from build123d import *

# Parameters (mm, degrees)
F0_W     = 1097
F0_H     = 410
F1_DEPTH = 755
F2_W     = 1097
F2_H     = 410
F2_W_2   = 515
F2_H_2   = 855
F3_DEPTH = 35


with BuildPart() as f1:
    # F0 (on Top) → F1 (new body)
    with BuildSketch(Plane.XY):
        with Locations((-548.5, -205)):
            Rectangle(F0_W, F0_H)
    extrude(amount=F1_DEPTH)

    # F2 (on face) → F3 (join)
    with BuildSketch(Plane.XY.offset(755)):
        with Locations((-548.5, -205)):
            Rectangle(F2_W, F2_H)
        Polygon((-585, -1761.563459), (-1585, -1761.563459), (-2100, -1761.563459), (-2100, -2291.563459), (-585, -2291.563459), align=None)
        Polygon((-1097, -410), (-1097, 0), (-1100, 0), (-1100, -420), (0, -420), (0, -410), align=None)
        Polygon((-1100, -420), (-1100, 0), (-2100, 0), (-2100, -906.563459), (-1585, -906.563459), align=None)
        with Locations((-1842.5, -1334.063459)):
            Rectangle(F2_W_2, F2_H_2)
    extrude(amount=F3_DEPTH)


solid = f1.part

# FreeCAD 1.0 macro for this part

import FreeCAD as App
import Part
import Sketcher
from FreeCAD import Vector


def add_polygon(sketch, points):
    """Adds a closed chain of lines whose ends are joined by coincident constraints."""
    first, n = sketch.GeometryCount, len(points)
    for a, b in zip(points, points[1:] + points[:1]):
        sketch.addGeometry(Part.LineSegment(App.Vector(*a, 0), App.Vector(*b, 0)), False)
    for i in range(n):
        sketch.addConstraint(Sketcher.Constraint("Coincident", first + i, 2, first + (i + 1) % n, 1))

doc = App.newDocument("Part")
body = doc.addObject("PartDesign::Body", "Body")

# Sketch on XY plane
sketch1 = doc.addObject("Sketcher::SketchObject", "Sketch")
body.addObject(sketch1)
sketch1.AttachmentSupport = (doc.XY_Plane, [""])
sketch1.MapMode = "FlatFace"
add_polygon(sketch1, [(-1097, 0), (-1097, -410), (0, -410), (0, 0)])  # lines 0-3
sketch1.addConstraint(Sketcher.Constraint("Vertical", 0))
sketch1.addConstraint(Sketcher.Constraint("Horizontal", 1))
sketch1.addConstraint(Sketcher.Constraint("Vertical", 2))
sketch1.addConstraint(Sketcher.Constraint("Horizontal", 3))
sketch1.addConstraint(Sketcher.Constraint("Coincident", 2, 2, -1, 1))
sketch1.addConstraint(Sketcher.Constraint("DistanceX", 1, 1, 1, 2, 1097.0))
sketch1.addConstraint(Sketcher.Constraint("DistanceY", 0, 2, 0, 1, 410.0))
pad1 = doc.addObject("PartDesign::Pad", "Pad")
body.addObject(pad1)
pad1.Profile = sketch1
pad1.Length = 755

# Sketch on XY plane
sketch2 = doc.addObject("Sketcher::SketchObject", "Sketch001")
body.addObject(sketch2)
sketch2.AttachmentSupport = (doc.XY_Plane, [""])
sketch2.MapMode = "FlatFace"
sketch2.AttachmentOffset = App.Placement(Vector(0, 0, 755), App.Rotation())
add_polygon(sketch2, [(0, 0), (-2100, 0), (-2100, -2291.563459), (-585, -2291.563459), (-585, -1761.563459), (-1585, -1761.563459), (-1585, -906.563459), (-1100, -420), (0, -420)])  # lines 0-8
sketch2.addConstraint(Sketcher.Constraint("Horizontal", 0))
sketch2.addConstraint(Sketcher.Constraint("Vertical", 1))
sketch2.addConstraint(Sketcher.Constraint("Horizontal", 2))
sketch2.addConstraint(Sketcher.Constraint("Vertical", 3))
sketch2.addConstraint(Sketcher.Constraint("Horizontal", 4))
sketch2.addConstraint(Sketcher.Constraint("Vertical", 5))
sketch2.addConstraint(Sketcher.Constraint("Horizontal", 7))
sketch2.addConstraint(Sketcher.Constraint("Vertical", 8))
sketch2.addConstraint(Sketcher.Constraint("Coincident", 8, 2, -1, 1))
sketch2.addConstraint(Sketcher.Constraint("DistanceX", 0, 2, 0, 1, 2100.0))
sketch2.addConstraint(Sketcher.Constraint("DistanceX", 2, 1, 2, 2, 1515.0))
sketch2.addConstraint(Sketcher.Constraint("DistanceX", 4, 2, 4, 1, 1000.0))
sketch2.addConstraint(Sketcher.Constraint("DistanceX", 7, 1, 7, 2, 1100.0))
sketch2.addConstraint(Sketcher.Constraint("DistanceY", 3, 1, 3, 2, 530.0))
sketch2.addConstraint(Sketcher.Constraint("DistanceY", 5, 1, 5, 2, 855.0))
sketch2.addConstraint(Sketcher.Constraint("DistanceY", 8, 1, 8, 2, 420.0))
sketch2.addConstraint(Sketcher.Constraint("Distance", 6, 687.0))
pad2 = doc.addObject("PartDesign::Pad", "Pad001")
body.addObject(pad2)
pad2.Profile = sketch2
pad2.Length = 35

doc.recompute()
